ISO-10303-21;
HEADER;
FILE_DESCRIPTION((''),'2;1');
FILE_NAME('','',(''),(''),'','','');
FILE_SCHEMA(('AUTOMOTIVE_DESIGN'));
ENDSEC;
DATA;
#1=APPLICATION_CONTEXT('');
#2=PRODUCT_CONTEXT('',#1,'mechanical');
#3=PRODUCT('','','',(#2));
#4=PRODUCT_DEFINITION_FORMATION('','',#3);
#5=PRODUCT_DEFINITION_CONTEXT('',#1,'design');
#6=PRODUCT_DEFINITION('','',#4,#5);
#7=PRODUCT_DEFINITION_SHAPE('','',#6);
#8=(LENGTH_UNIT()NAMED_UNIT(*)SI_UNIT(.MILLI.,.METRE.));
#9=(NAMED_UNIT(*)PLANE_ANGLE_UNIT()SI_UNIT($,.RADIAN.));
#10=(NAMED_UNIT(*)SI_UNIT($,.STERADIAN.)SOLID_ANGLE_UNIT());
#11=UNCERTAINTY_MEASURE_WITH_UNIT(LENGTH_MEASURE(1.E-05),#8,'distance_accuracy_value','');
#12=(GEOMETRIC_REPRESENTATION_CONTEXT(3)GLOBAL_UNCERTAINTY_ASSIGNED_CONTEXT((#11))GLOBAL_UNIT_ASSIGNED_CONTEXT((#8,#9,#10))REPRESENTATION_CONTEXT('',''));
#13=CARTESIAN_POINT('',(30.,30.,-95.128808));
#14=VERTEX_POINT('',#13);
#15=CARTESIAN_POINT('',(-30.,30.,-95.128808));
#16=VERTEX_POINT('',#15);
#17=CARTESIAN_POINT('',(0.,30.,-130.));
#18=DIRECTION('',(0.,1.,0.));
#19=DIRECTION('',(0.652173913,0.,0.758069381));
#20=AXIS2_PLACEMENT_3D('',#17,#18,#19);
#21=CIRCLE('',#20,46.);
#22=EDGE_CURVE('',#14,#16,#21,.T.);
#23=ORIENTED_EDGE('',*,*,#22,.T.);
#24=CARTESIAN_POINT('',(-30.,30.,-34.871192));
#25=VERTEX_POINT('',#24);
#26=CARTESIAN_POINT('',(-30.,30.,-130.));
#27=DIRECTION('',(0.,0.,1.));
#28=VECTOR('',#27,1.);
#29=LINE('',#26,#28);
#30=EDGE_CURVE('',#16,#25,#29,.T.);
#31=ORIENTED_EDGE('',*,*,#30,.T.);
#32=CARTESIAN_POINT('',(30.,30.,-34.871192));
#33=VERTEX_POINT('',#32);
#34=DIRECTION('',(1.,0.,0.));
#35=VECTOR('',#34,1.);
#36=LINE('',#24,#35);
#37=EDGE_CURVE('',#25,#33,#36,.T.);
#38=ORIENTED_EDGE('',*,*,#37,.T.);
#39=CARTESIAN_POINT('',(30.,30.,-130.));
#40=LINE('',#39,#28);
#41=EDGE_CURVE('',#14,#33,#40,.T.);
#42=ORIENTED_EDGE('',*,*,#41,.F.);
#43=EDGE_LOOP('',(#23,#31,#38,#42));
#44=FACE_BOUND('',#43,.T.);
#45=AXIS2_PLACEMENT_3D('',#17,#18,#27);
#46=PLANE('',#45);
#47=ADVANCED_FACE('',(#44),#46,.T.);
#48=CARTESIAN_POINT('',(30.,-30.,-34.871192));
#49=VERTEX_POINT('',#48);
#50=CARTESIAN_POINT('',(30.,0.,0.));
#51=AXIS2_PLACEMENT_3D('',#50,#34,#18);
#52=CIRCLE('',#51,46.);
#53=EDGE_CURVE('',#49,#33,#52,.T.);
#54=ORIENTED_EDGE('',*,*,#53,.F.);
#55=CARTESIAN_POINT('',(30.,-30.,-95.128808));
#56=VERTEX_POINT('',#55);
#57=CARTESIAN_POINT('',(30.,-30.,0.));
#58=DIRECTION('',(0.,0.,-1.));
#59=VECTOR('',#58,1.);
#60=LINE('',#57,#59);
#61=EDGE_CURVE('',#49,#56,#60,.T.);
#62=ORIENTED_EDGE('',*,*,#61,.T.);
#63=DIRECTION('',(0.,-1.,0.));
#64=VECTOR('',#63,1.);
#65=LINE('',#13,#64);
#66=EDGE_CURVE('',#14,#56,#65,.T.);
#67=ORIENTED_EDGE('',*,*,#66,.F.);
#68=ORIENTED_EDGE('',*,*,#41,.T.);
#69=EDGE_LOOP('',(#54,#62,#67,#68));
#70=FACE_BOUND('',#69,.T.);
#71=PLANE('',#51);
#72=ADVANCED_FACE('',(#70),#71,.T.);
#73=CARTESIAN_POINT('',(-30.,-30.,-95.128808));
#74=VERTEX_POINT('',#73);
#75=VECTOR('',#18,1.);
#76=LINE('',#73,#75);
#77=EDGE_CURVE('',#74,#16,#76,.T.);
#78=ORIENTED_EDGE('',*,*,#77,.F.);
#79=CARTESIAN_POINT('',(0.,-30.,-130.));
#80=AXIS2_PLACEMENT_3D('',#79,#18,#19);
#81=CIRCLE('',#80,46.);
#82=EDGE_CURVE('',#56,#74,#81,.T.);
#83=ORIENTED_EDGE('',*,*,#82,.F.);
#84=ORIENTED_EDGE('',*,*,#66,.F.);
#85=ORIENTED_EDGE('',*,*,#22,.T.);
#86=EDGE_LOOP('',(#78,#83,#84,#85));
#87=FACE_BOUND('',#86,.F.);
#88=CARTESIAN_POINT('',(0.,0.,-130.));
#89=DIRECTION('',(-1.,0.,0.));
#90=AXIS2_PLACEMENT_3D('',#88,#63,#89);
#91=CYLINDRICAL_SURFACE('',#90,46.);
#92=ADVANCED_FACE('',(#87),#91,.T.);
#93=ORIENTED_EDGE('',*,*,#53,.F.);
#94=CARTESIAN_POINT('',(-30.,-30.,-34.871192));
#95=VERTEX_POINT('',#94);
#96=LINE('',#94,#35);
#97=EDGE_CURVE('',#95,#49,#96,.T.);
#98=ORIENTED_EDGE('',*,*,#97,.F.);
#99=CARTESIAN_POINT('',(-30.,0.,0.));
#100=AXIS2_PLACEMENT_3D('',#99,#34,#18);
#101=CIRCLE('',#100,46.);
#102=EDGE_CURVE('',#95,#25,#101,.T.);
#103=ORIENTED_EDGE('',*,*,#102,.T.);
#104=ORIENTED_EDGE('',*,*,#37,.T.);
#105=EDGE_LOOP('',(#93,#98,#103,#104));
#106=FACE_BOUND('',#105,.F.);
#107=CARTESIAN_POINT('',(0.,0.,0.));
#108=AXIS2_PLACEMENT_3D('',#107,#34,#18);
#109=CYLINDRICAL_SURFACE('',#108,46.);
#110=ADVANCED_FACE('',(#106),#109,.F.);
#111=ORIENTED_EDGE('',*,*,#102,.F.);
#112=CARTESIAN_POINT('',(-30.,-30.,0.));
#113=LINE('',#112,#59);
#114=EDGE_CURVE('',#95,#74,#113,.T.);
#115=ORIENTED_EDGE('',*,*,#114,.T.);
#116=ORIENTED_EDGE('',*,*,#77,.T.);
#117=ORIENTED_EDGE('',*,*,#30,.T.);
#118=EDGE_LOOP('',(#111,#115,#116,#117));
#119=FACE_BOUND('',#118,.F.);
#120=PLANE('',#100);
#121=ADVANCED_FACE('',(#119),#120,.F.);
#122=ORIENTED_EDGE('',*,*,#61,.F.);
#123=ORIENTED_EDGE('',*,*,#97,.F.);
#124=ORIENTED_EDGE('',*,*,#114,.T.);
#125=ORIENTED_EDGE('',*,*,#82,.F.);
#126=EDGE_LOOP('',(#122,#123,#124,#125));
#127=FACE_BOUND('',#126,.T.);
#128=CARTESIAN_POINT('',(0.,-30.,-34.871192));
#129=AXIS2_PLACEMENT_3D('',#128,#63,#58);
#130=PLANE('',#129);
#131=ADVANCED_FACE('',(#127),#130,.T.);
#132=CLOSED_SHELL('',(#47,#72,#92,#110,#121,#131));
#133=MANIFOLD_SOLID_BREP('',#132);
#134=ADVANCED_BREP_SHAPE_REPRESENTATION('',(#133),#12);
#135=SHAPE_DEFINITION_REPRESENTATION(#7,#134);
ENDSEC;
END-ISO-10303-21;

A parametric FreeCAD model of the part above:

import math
import FreeCAD as App
import Part
import Sketcher
Q = App.Units.Quantity

doc = App.newDocument("Part")
body = doc.addObject("PartDesign::Body", "Body")

# Sketch on YZ plane
sketch1 = body.newObject("Sketcher::SketchObject", "Sketch")
sketch1.AttachmentSupport = (doc.getObject("YZ_Plane"), [""])
sketch1.MapMode = "FlatFace"
sketch1.addGeometry([
    Part.LineSegment(App.Vector(30, -130, 0), App.Vector(30, -35, 0)),
    Part.ArcOfCircle(Part.Circle(App.Vector(0, 0, 0), App.Vector(0, 0, 1), 46), math.radians(-131), math.radians(-49)),
    Part.LineSegment(App.Vector(-30, -35, 0), App.Vector(-30, -130, 0)),
    Part.LineSegment(App.Vector(-30, -130, 0), App.Vector(30, -130, 0)),
], False)
sketch1.addConstraint([
    Sketcher.Constraint("Coincident", 0, 2, 1, 2),
    Sketcher.Constraint("Coincident", 1, 1, 2, 1),
    Sketcher.Constraint("Coincident", 2, 2, 3, 1),
    Sketcher.Constraint("Coincident", 3, 2, 0, 1),
    Sketcher.Constraint("Vertical", 0),
    Sketcher.Constraint("Vertical", 2),
    Sketcher.Constraint("Horizontal", 3),
    Sketcher.Constraint("Coincident", 1, 3, -1, 1),
    Sketcher.Constraint("Horizontal", 0, 2, 1, 1),
    Sketcher.Constraint("Radius", 1, Q("46 mm")),
    Sketcher.Constraint("DistanceX", 3, 1, 3, 2, Q("60 mm")),
    Sketcher.Constraint("DistanceY", 2, 2, -1, 1, Q("130 mm")),
])
pad1 = body.newObject("PartDesign::Pad", "Pad")
pad1.Profile = sketch1
pad1.Length = 60
pad1.Midplane = True

# Sketch on XZ plane
sketch2 = body.newObject("Sketcher::SketchObject", "Sketch001")
sketch2.AttachmentSupport = (doc.getObject("XZ_Plane"), [""])
sketch2.MapMode = "FlatFace"
sketch2.addGeometry(Part.Circle(App.Vector(0, -130, 0), App.Vector(0, 0, 1), 46), False)
sketch2.addConstraint([
    Sketcher.Constraint("PointOnObject", 0, 3, -2),
    Sketcher.Constraint("Diameter", 0, Q("92 mm")),
    Sketcher.Constraint("DistanceY", 0, 3, -1, 1, Q("130 mm")),
])
pad2 = body.newObject("PartDesign::Pad", "Pad001")
pad2.Profile = sketch2
pad2.Length = 60
pad2.Midplane = True

doc.recompute()
